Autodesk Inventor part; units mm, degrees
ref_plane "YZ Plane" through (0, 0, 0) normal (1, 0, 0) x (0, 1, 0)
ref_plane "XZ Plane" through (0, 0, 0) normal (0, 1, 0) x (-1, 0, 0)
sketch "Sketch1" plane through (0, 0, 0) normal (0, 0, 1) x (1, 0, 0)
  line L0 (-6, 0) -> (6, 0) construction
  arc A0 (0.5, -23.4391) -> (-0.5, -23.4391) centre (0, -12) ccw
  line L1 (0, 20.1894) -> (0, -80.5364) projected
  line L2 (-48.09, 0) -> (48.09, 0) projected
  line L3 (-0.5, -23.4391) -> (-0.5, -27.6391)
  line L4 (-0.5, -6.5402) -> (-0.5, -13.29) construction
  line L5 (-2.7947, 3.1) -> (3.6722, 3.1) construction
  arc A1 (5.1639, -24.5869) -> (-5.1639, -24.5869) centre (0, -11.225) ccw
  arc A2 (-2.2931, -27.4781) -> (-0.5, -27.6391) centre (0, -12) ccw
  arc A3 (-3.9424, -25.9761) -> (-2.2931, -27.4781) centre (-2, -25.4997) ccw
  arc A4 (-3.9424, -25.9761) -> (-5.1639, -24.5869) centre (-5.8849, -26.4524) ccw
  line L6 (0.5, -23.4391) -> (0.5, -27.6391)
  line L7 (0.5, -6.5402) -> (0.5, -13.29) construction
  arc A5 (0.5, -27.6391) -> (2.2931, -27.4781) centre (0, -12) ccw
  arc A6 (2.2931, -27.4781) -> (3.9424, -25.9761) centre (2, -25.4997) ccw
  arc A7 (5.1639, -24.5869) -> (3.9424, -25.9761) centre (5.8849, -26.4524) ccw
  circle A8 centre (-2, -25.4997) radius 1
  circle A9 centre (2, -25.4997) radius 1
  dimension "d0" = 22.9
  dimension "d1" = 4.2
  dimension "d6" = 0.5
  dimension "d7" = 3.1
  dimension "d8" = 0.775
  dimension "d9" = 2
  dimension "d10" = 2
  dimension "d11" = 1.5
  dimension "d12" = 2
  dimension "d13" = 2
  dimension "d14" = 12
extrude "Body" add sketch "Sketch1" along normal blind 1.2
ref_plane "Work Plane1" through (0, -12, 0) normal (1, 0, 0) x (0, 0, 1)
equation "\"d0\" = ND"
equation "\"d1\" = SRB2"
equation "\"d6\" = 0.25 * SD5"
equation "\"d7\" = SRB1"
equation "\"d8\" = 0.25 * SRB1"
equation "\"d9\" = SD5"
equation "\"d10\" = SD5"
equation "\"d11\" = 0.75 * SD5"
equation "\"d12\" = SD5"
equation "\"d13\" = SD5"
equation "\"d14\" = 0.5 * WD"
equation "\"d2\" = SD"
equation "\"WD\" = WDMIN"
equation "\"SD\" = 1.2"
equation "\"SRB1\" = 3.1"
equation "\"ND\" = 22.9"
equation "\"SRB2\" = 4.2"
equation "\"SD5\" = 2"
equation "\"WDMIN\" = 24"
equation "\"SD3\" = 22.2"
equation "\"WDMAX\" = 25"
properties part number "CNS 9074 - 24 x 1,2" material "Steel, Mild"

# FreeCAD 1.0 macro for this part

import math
import FreeCAD as App
import Part
import Sketcher

V = App.Vector

doc = App.newDocument("Part")
body = doc.addObject("PartDesign::Body", "Body")

sketch1 = body.newObject("Sketcher::SketchObject", "Sketch")
sketch1.AttachmentSupport = (doc.getObject("XY_Plane"), [""])
sketch1.MapMode = "FlatFace"
sketch1.addGeometry([
    Part.LineSegment(V(0.5, -23.4391, 0), V(0.5, -27.6391, 0)),
    Part.ArcOfCircle(Part.Circle(V(0.000914, -12.015029, 0), V(0, 0, 1), 15.63204), math.radians(-88.1704), math.radians(-81.568098)),
    Part.ArcOfCircle(Part.Circle(V(2, -25.4997, 0), V(0, 0, 1), 1.999994), math.radians(-81.572926), math.radians(-13.780547)),
    Part.ArcOfCircle(Part.Circle(V(5.8849, -26.4524, 0), V(0, 0, 1), 1.999983), math.radians(111.131096), math.radians(166.222917)),
    Part.ArcOfCircle(Part.Circle(V(0, -11.225, 0), V(0, 0, 1), 14.325021), math.radians(-68.870253), math.radians(248.870253)),
    Part.ArcOfCircle(Part.Circle(V(-5.8849, -26.4524, 0), V(0, 0, 1), 2.000042), math.radians(13.777083), math.radians(68.868904)),
    Part.ArcOfCircle(Part.Circle(V(-2, -25.4997, 0), V(0, 0, 1), 1.999969), math.radians(-166.219453), math.radians(-98.427074)),
    Part.ArcOfCircle(Part.Circle(V(0.001781, -11.98502, 0), V(0, 0, 1), 15.662121), math.radians(-98.425555), math.radians(-91.835947)),
    Part.LineSegment(V(-0.5, -27.6391, 0), V(-0.5, -23.4391, 0)),
    Part.ArcOfCircle(Part.Circle(V(0, -12, 0), V(0, 0, 1), 11.450022), math.radians(-87.49721), math.radians(267.49721)),
    Part.Circle(V(2, -25.4997, 0), V(0, 0, 1), 1),
    Part.Circle(V(-2, -25.4997, 0), V(0, 0, 1), 1),
], False)
sketch1.addConstraint([
    Sketcher.Constraint("Coincident", 0, 2, 1, 1),
    Sketcher.Constraint("Coincident", 1, 2, 2, 1),
    Sketcher.Constraint("Coincident", 2, 2, 3, 2),
    Sketcher.Constraint("Coincident", 3, 1, 4, 1),
    Sketcher.Constraint("Coincident", 4, 2, 5, 2),
    Sketcher.Constraint("Coincident", 5, 1, 6, 1),
    Sketcher.Constraint("Coincident", 6, 2, 7, 1),
    Sketcher.Constraint("Coincident", 7, 2, 8, 1),
    Sketcher.Constraint("Coincident", 8, 2, 9, 2),
    Sketcher.Constraint("Coincident", 9, 1, 0, 1),
    Sketcher.Constraint("Vertical", 0),
    Sketcher.Constraint("Vertical", 8),
    Sketcher.Constraint("Coincident", 10, 3, 2, 3),
    Sketcher.Constraint("Coincident", 11, 3, 6, 3),
    Sketcher.Constraint("PointOnObject", 4, 3, -2),
    Sketcher.Constraint("PointOnObject", 9, 3, -2),
    Sketcher.Constraint("Diameter", 10, 2.0),
    Sketcher.Constraint("Diameter", 11, 2.0),
    Sketcher.Constraint("Radius", 2, 2.0),
    Sketcher.Constraint("Radius", 3, 2.0),
    Sketcher.Constraint("Radius", 5, 2.0),
    Sketcher.Constraint("Radius", 6, 2.0),
    Sketcher.Constraint("Radius", 9, 11.45),
    Sketcher.Constraint("DistanceY", 0, 2, 0, 1, 4.2),
    Sketcher.Constraint("DistanceY", 8, 1, 8, 2, 4.2),
    Sketcher.Constraint("DistanceX", -1, 1, 2, 3, 2.0),
    Sketcher.Constraint("DistanceX", 6, 3, -1, 1, 2.0),
    Sketcher.Constraint("DistanceY", 9, 3, -1, 1, 12.0),
    Sketcher.Constraint("DistanceX", -1, 1, 0, 2, 0.5),
    Sketcher.Constraint("DistanceX", 7, 2, -1, 1, 0.5),
    Sketcher.Constraint("Radius", 1, 15.632),
    Sketcher.Constraint("Radius", 4, 14.325),
    Sketcher.Constraint("DistanceY", 9, 3, 4, 3, 0.775),
    Sketcher.Constraint("Radius", 7, 15.6621),
    Sketcher.Constraint("DistanceY", 1, 3, 4, 3, 0.79),
    Sketcher.Constraint("DistanceY", 1, 3, 7, 3, 0.03),
    Sketcher.Constraint("DistanceX", -1, 1, 1, 2, 2.293),
    Sketcher.Constraint("DistanceY", 2, 2, -1, 1, 25.976),
    Sketcher.Constraint("DistanceX", -1, 1, 3, 1, 5.164),
    Sketcher.Constraint("DistanceX", 4, 2, -1, 1, 5.164),
    Sketcher.Constraint("DistanceY", 5, 1, -1, 1, 25.976),
    Sketcher.Constraint("DistanceX", 6, 2, -1, 1, 2.293),
])
pad1 = body.newObject("PartDesign::Pad", "Pad")
pad1.Profile = sketch1
pad1.Length = 1.2

doc.recompute()
